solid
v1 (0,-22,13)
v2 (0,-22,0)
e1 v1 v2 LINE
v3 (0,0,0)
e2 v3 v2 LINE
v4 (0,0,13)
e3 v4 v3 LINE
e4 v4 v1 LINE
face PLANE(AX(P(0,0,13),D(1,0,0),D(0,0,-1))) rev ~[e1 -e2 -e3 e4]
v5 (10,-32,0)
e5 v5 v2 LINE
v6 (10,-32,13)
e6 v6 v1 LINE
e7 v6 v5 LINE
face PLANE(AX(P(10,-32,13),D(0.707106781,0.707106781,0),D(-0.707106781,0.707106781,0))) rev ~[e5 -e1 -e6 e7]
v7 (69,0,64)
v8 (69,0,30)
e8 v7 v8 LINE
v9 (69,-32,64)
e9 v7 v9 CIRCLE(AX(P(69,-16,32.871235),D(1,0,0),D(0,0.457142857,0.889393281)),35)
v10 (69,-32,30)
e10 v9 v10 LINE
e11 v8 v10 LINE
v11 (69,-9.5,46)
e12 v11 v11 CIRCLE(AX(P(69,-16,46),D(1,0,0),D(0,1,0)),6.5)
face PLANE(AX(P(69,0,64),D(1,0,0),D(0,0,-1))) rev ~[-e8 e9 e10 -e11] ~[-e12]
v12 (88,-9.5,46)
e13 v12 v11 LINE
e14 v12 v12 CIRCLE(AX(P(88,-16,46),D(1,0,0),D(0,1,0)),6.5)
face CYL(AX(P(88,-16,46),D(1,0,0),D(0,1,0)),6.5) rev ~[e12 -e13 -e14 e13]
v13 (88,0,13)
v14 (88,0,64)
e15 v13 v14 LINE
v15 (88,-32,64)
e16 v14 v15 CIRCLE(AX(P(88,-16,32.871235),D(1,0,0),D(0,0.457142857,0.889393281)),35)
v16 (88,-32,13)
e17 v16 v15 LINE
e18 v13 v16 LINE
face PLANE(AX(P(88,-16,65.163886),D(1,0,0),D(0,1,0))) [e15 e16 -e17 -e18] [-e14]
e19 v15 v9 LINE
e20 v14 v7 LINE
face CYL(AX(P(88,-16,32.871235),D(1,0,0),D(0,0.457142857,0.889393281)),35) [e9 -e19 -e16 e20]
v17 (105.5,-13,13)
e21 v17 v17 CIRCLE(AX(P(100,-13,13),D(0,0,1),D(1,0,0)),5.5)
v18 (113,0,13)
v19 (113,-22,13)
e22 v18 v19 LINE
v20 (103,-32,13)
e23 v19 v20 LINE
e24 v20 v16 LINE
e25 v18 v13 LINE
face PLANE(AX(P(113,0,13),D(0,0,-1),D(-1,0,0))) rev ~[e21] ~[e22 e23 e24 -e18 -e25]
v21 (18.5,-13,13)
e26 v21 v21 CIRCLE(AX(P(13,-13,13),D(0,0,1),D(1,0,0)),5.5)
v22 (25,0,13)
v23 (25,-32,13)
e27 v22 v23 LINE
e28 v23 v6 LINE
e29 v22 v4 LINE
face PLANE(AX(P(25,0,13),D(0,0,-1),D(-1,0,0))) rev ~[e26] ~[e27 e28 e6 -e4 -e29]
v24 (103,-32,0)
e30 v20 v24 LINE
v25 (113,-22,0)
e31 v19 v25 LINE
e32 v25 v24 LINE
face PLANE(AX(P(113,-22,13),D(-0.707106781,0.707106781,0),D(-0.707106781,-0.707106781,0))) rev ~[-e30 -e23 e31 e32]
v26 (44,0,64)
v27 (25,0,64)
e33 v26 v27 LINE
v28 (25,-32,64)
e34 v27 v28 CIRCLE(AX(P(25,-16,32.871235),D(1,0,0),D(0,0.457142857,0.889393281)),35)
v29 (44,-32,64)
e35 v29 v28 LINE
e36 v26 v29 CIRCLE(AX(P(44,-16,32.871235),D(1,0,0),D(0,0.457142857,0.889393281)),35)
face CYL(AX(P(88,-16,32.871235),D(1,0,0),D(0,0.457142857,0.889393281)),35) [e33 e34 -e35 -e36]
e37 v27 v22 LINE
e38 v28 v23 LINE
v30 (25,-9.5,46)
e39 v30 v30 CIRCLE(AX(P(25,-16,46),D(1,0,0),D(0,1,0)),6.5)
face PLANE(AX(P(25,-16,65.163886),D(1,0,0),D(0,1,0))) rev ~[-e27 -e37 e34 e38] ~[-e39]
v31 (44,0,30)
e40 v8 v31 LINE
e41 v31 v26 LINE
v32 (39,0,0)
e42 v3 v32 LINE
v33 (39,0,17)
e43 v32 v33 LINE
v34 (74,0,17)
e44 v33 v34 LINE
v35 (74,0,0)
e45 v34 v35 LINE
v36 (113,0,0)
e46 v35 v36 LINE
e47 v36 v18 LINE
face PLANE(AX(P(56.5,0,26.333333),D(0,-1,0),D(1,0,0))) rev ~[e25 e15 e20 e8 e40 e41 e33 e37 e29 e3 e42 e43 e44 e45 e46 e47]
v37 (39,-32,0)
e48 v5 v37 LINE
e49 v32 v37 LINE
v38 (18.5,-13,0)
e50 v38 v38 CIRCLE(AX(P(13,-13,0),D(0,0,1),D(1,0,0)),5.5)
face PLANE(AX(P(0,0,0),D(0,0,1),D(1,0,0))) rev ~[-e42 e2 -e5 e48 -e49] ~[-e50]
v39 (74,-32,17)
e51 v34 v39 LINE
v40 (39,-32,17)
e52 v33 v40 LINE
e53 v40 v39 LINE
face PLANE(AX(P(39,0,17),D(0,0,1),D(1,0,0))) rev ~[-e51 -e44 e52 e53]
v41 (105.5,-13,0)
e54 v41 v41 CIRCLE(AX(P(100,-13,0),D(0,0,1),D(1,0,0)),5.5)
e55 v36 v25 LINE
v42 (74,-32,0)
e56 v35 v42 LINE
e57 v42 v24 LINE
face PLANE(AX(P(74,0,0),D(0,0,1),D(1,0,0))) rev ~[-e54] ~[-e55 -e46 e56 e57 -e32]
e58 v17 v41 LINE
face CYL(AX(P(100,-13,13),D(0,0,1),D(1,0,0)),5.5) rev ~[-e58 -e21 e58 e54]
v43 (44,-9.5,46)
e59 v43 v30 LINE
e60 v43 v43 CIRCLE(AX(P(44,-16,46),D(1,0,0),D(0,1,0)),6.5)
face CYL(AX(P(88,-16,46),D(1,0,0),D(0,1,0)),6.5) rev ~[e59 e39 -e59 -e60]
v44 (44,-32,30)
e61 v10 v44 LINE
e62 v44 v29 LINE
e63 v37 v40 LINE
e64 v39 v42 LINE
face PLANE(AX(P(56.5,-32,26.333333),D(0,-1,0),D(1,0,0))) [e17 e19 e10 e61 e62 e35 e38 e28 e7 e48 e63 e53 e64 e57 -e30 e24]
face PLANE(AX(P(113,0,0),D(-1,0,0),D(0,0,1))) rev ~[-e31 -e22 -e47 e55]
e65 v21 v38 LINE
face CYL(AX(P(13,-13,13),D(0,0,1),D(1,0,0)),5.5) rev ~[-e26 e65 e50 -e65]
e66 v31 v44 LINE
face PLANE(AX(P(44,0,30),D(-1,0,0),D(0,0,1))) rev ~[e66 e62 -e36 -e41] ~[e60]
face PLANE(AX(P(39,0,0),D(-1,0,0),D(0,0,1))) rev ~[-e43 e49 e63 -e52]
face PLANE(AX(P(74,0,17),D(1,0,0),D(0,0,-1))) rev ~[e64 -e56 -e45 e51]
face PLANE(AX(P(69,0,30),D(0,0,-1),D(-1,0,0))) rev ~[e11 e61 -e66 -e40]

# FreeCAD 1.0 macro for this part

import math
import FreeCAD as App
import Part
import Sketcher

doc = App.newDocument("Part")
params = doc.addObject("Spreadsheet::Sheet", "Params")
for row, (alias, value) in enumerate([
    ("sketch1_width", "39 mm"),
    ("sketch1_width2", "35 mm"),
    ("sketch1_width3", "25 mm"),
    ("sketch1_height", "13 mm"),
    ("sketch1_height2", "17 mm"),
    ("pad1_length", "32 mm"),
    ("sketch2_diameter", "11 mm"),
    ("sketch3_diameter", "11 mm"),
    ("sketch4_diameter", "13 mm"),
    ("sketch5_width", "10 mm"),
    ("sketch6_width", "10 mm"),
    ("sketch7_radius", "35 mm"),
    ("sketch7_width", "32 mm"),
    ("pad2_length", "63 mm"),
    ("sketch8_width", "25 mm"),
    ("sketch9_radius", "35 mm"),
    ("sketch9_width", "32 mm"),
    ("pad3_length", "63 mm"),
], start=1):
    params.set(f"A{row}", alias)
    params.set(f"B{row}", "=" + value)
    params.setAlias(f"B{row}", alias)

body = doc.addObject("PartDesign::Body", "Body")

# Sketch on XZ plane
sketch1 = body.newObject("Sketcher::SketchObject", "Sketch")
sketch1.AttachmentSupport = (doc.getObject("XZ_Plane"), [""])
sketch1.MapMode = "FlatFace"
sketch1.addGeometry([
    Part.LineSegment(App.Vector(0, 13, 0), App.Vector(0, 0, 0)),  # 0
    Part.LineSegment(App.Vector(0, 0, 0), App.Vector(39, 0, 0)),  # 1
    Part.LineSegment(App.Vector(39, 0, 0), App.Vector(39, 17, 0)),  # 2
    Part.LineSegment(App.Vector(39, 17, 0), App.Vector(74, 17, 0)),  # 3
    Part.LineSegment(App.Vector(74, 17, 0), App.Vector(74, 0, 0)),  # 4
    Part.LineSegment(App.Vector(74, 0, 0), App.Vector(113, 0, 0)),  # 5
    Part.LineSegment(App.Vector(113, 0, 0), App.Vector(113, 13, 0)),  # 6
    Part.LineSegment(App.Vector(113, 13, 0), App.Vector(88, 13, 0)),  # 7
    Part.LineSegment(App.Vector(88, 13, 0), App.Vector(88, 64, 0)),  # 8
    Part.LineSegment(App.Vector(88, 64, 0), App.Vector(69, 64, 0)),  # 9
    Part.LineSegment(App.Vector(69, 64, 0), App.Vector(69, 30, 0)),  # 10
    Part.LineSegment(App.Vector(69, 30, 0), App.Vector(44, 30, 0)),  # 11
    Part.LineSegment(App.Vector(44, 30, 0), App.Vector(44, 64, 0)),  # 12
    Part.LineSegment(App.Vector(44, 64, 0), App.Vector(25, 64, 0)),  # 13
    Part.LineSegment(App.Vector(25, 64, 0), App.Vector(25, 13, 0)),  # 14
    Part.LineSegment(App.Vector(25, 13, 0), App.Vector(0, 13, 0)),  # 15
], False)
sketch1.addConstraint([
    Sketcher.Constraint("Coincident", 0, 2, 1, 1),
    Sketcher.Constraint("Coincident", 1, 2, 2, 1),
    Sketcher.Constraint("Coincident", 2, 2, 3, 1),
    Sketcher.Constraint("Coincident", 3, 2, 4, 1),
    Sketcher.Constraint("Coincident", 4, 2, 5, 1),
    Sketcher.Constraint("Coincident", 5, 2, 6, 1),
    Sketcher.Constraint("Coincident", 6, 2, 7, 1),
    Sketcher.Constraint("Coincident", 7, 2, 8, 1),
    Sketcher.Constraint("Coincident", 8, 2, 9, 1),
    Sketcher.Constraint("Coincident", 9, 2, 10, 1),
    Sketcher.Constraint("Coincident", 10, 2, 11, 1),
    Sketcher.Constraint("Coincident", 11, 2, 12, 1),
    Sketcher.Constraint("Coincident", 12, 2, 13, 1),
    Sketcher.Constraint("Coincident", 13, 2, 14, 1),
    Sketcher.Constraint("Coincident", 14, 2, 15, 1),
    Sketcher.Constraint("Coincident", 15, 2, 0, 1),
    Sketcher.Constraint("Vertical", 0),
    Sketcher.Constraint("Horizontal", 1),
    Sketcher.Constraint("Vertical", 2),
    Sketcher.Constraint("Horizontal", 3),
    Sketcher.Constraint("Vertical", 4),
    Sketcher.Constraint("Horizontal", 5),
    Sketcher.Constraint("Vertical", 6),
    Sketcher.Constraint("Horizontal", 7),
    Sketcher.Constraint("Vertical", 8),
    Sketcher.Constraint("Horizontal", 9),
    Sketcher.Constraint("Vertical", 10),
    Sketcher.Constraint("Horizontal", 11),
    Sketcher.Constraint("Vertical", 12),
    Sketcher.Constraint("Horizontal", 13),
    Sketcher.Constraint("Vertical", 14),
    Sketcher.Constraint("Horizontal", 15),
    Sketcher.Constraint("Coincident", 0, 2, -1, 1),
    Sketcher.Constraint("PointOnObject", 4, 2, -1),
    Sketcher.Constraint("Horizontal", 9, 2, 12, 2),
    Sketcher.Constraint("Horizontal", 7, 2, 14, 2),
    Sketcher.Constraint("Equal", 1, 5),
    Sketcher.Constraint("Equal", 7, 11),
    Sketcher.Constraint("Equal", 9, 13),
    Sketcher.Constraint("Equal", 11, 15),
    Sketcher.Constraint("DistanceX", 1, 1, 1, 2, 39.0),
    Sketcher.Constraint("DistanceX", 3, 1, 3, 2, 35.0),
    Sketcher.Constraint("DistanceX", 7, 2, 7, 1, 25.0),
    Sketcher.Constraint("DistanceY", 0, 2, 0, 1, 13.0),
    Sketcher.Constraint("DistanceY", 2, 1, 2, 2, 17.0),
    Sketcher.Constraint("DistanceY", 8, 1, 8, 2, 51.0),
    Sketcher.Constraint("DistanceY", 10, 2, 10, 1, 34.0),
])
sketch1.setExpression("Constraints[40]", "Params.sketch1_width")
sketch1.setExpression("Constraints[41]", "Params.sketch1_width2")
sketch1.setExpression("Constraints[42]", "Params.sketch1_width3")
sketch1.setExpression("Constraints[43]", "Params.sketch1_height")
sketch1.setExpression("Constraints[44]", "Params.sketch1_height2")
pad1 = body.newObject("PartDesign::Pad", "Pad")
pad1.Profile = sketch1
pad1.setExpression("Length", "Params.pad1_length")

# Sketch on XY plane
sketch2 = body.newObject("Sketcher::SketchObject", "Sketch001")
sketch2.AttachmentSupport = (doc.getObject("XY_Plane"), [""])
sketch2.MapMode = "FlatFace"
sketch2.AttachmentOffset = App.Placement(App.Vector(0, 0, 13), App.Rotation())
sketch2.addGeometry(Part.Circle(App.Vector(100, -13, 0), App.Vector(0, 0, 1), 6), False)
sketch2.addConstraint([
    Sketcher.Constraint("Diameter", 0, 11.0),
    Sketcher.Constraint("DistanceX", -1, 1, 0, 3, 100.0),
    Sketcher.Constraint("DistanceY", 0, 3, -1, 1, 13.0),
])
sketch2.setExpression("Constraints[0]", "Params.sketch2_diameter")
pocket1 = body.newObject("PartDesign::Pocket", "Pocket")
pocket1.Profile = sketch2
pocket1.Type = "ThroughAll"

# Sketch on XY plane
sketch3 = body.newObject("Sketcher::SketchObject", "Sketch002")
sketch3.AttachmentSupport = (doc.getObject("XY_Plane"), [""])
sketch3.MapMode = "FlatFace"
sketch3.AttachmentOffset = App.Placement(App.Vector(0, 0, 13), App.Rotation())
sketch3.addGeometry(Part.Circle(App.Vector(13, -13, 0), App.Vector(0, 0, 1), 6), False)
sketch3.addConstraint([
    Sketcher.Constraint("Diameter", 0, 11.0),
    Sketcher.Constraint("DistanceX", -1, 1, 0, 3, 13.0),
    Sketcher.Constraint("DistanceY", 0, 3, -1, 1, 13.0),
])
sketch3.setExpression("Constraints[0]", "Params.sketch3_diameter")
pocket2 = body.newObject("PartDesign::Pocket", "Pocket001")
pocket2.Profile = sketch3
pocket2.Type = "ThroughAll"

# Sketch on YZ plane
sketch4 = body.newObject("Sketcher::SketchObject", "Sketch003")
sketch4.AttachmentSupport = (doc.getObject("YZ_Plane"), [""])
sketch4.MapMode = "FlatFace"
sketch4.AttachmentOffset = App.Placement(App.Vector(0, 0, 88), App.Rotation())
sketch4.addGeometry(Part.Circle(App.Vector(-16, 46, 0), App.Vector(0, 0, 1), 6), False)
sketch4.addConstraint([
    Sketcher.Constraint("Diameter", 0, 13.0),
    Sketcher.Constraint("DistanceX", 0, 3, -1, 1, 16.0),
    Sketcher.Constraint("DistanceY", -1, 1, 0, 3, 46.0),
])
sketch4.setExpression("Constraints[0]", "Params.sketch4_diameter")
pocket3 = body.newObject("PartDesign::Pocket", "Pocket002")
pocket3.Profile = sketch4
pocket3.Type = "ThroughAll"

# Sketch on XY plane
sketch5 = body.newObject("Sketcher::SketchObject", "Sketch004")
sketch5.AttachmentSupport = (doc.getObject("XY_Plane"), [""])
sketch5.MapMode = "FlatFace"
sketch5.AttachmentOffset = App.Placement(App.Vector(0, 0, 13), App.Rotation())
sketch5.addGeometry([
    Part.LineSegment(App.Vector(103, -32, 0), App.Vector(113, -32, 0)),
    Part.LineSegment(App.Vector(113, -32, 0), App.Vector(113, -22, 0)),
    Part.LineSegment(App.Vector(113, -22, 0), App.Vector(103, -32, 0)),
], False)
sketch5.addConstraint([
    Sketcher.Constraint("Coincident", 0, 2, 1, 1),
    Sketcher.Constraint("Coincident", 1, 2, 2, 1),
    Sketcher.Constraint("Coincident", 2, 2, 0, 1),
    Sketcher.Constraint("Horizontal", 0),
    Sketcher.Constraint("Vertical", 1),
    Sketcher.Constraint("Equal", 0, 1),
    Sketcher.Constraint("DistanceX", 0, 1, 0, 2, 10.0),
    Sketcher.Constraint("DistanceX", -1, 1, 0, 2, 113.0),
    Sketcher.Constraint("DistanceY", 0, 2, -1, 1, 32.0),
])
sketch5.setExpression("Constraints[6]", "Params.sketch5_width")
pocket4 = body.newObject("PartDesign::Pocket", "Pocket003")
pocket4.Profile = sketch5
pocket4.Type = "ThroughAll"

# Sketch on XY plane
sketch6 = body.newObject("Sketcher::SketchObject", "Sketch005")
sketch6.AttachmentSupport = (doc.getObject("XY_Plane"), [""])
sketch6.MapMode = "FlatFace"
sketch6.AttachmentOffset = App.Placement(App.Vector(0, 0, 13), App.Rotation())
sketch6.addGeometry([
    Part.LineSegment(App.Vector(10, -32, 0), App.Vector(0, -22, 0)),
    Part.LineSegment(App.Vector(0, -22, 0), App.Vector(0, -32, 0)),
    Part.LineSegment(App.Vector(0, -32, 0), App.Vector(10, -32, 0)),
], False)
sketch6.addConstraint([
    Sketcher.Constraint("Coincident", 0, 2, 1, 1),
    Sketcher.Constraint("Coincident", 1, 2, 2, 1),
    Sketcher.Constraint("Coincident", 2, 2, 0, 1),
    Sketcher.Constraint("Vertical", 1),
    Sketcher.Constraint("Horizontal", 2),
    Sketcher.Constraint("PointOnObject", 0, 2, -2),
    Sketcher.Constraint("Equal", 2, 1),
    Sketcher.Constraint("DistanceX", 2, 1, 2, 2, 10.0),
    Sketcher.Constraint("DistanceY", 0, 2, -1, 1, 22.0),
])
sketch6.setExpression("Constraints[7]", "Params.sketch6_width")
pocket5 = body.newObject("PartDesign::Pocket", "Pocket004")
pocket5.Profile = sketch6
pocket5.Type = "ThroughAll"

# Sketch on YZ plane
sketch7 = body.newObject("Sketcher::SketchObject", "Sketch006")
sketch7.AttachmentSupport = (doc.getObject("YZ_Plane"), [""])
sketch7.MapMode = "FlatFace"
sketch7.AttachmentOffset = App.Placement(App.Vector(0, 0, 88), App.Rotation())
sketch7.addGeometry([
    Part.LineSegment(App.Vector(-32, 64, 0), App.Vector(0, 64, 0)),
    Part.ArcOfCircle(Part.Circle(App.Vector(-16, 33, 0), App.Vector(0, 0, 1), 35), math.radians(63), math.radians(117)),
], False)
sketch7.addConstraint([
    Sketcher.Constraint("Coincident", 0, 1, 1, 2),
    Sketcher.Constraint("Coincident", 1, 1, 0, 2),
    Sketcher.Constraint("Horizontal", 0),
    Sketcher.Constraint("PointOnObject", 1, 1, -2),
    Sketcher.Constraint("Radius", 1, 35.0),
    Sketcher.Constraint("DistanceX", 0, 1, 0, 2, 32.0),
    Sketcher.Constraint("DistanceY", -1, 1, 0, 1, 64.0),
])
sketch7.setExpression("Constraints[4]", "Params.sketch7_radius")
sketch7.setExpression("Constraints[5]", "Params.sketch7_width")
pad2 = body.newObject("PartDesign::Pad", "Pad001")
pad2.Profile = sketch7
pad2.setExpression("Length", "Params.pad2_length")
pad2.Reversed = True

# Sketch on XZ plane
sketch8 = body.newObject("Sketcher::SketchObject", "Sketch007")
sketch8.AttachmentSupport = (doc.getObject("XZ_Plane"), [""])
sketch8.MapMode = "FlatFace"
sketch8.addGeometry([
    Part.LineSegment(App.Vector(44, 68.5, 0), App.Vector(44, 64, 0)),
    Part.LineSegment(App.Vector(44, 64, 0), App.Vector(69, 64, 0)),
    Part.LineSegment(App.Vector(69, 64, 0), App.Vector(69, 68.5, 0)),
    Part.LineSegment(App.Vector(69, 68.5, 0), App.Vector(44, 68.5, 0)),
], False)
sketch8.addConstraint([
    Sketcher.Constraint("Coincident", 0, 2, 1, 1),
    Sketcher.Constraint("Coincident", 1, 2, 2, 1),
    Sketcher.Constraint("Coincident", 2, 2, 3, 1),
    Sketcher.Constraint("Coincident", 3, 2, 0, 1),
    Sketcher.Constraint("Vertical", 0),
    Sketcher.Constraint("Horizontal", 1),
    Sketcher.Constraint("Vertical", 2),
    Sketcher.Constraint("Horizontal", 3),
    Sketcher.Constraint("DistanceX", 1, 1, 1, 2, 25.0),
    Sketcher.Constraint("DistanceX", -1, 1, 0, 2, 44.0),
    Sketcher.Constraint("DistanceY", -1, 1, 0, 2, 64.0),
    Sketcher.Constraint("DistanceY", 0, 2, 0, 1, 4.455775),
])
sketch8.setExpression("Constraints[8]", "Params.sketch8_width")
pocket6 = body.newObject("PartDesign::Pocket", "Pocket005")
pocket6.Profile = sketch8
pocket6.Type = "ThroughAll"
pocket6.Reversed = True
body2 = doc.addObject("PartDesign::Body", "Body001")

# Sketch on YZ plane
sketch9 = body2.newObject("Sketcher::SketchObject", "Sketch008")
sketch9.AttachmentSupport = (doc.getObject("YZ_Plane001"), [""])
sketch9.MapMode = "FlatFace"
sketch9.AttachmentOffset = App.Placement(App.Vector(0, 0, 88), App.Rotation())
sketch9.addGeometry([
    Part.LineSegment(App.Vector(-32, 64, 0), App.Vector(0, 64, 0)),
    Part.ArcOfCircle(Part.Circle(App.Vector(-16, 33, 0), App.Vector(0, 0, 1), 35), math.radians(63), math.radians(117)),
], False)
sketch9.addConstraint([
    Sketcher.Constraint("Coincident", 0, 1, 1, 2),
    Sketcher.Constraint("Coincident", 1, 1, 0, 2),
    Sketcher.Constraint("Horizontal", 0),
    Sketcher.Constraint("PointOnObject", 1, 1, -2),
    Sketcher.Constraint("Radius", 1, 35.0),
    Sketcher.Constraint("DistanceX", 0, 1, 0, 2, 32.0),
    Sketcher.Constraint("DistanceY", -1, 1, 0, 1, 64.0),
])
sketch9.setExpression("Constraints[4]", "Params.sketch9_radius")
sketch9.setExpression("Constraints[5]", "Params.sketch9_width")
pad3 = body2.newObject("PartDesign::Pad", "Pad002")
pad3.Profile = sketch9
pad3.setExpression("Length", "Params.pad3_length")
pad3.Reversed = True
body2.Visibility = False

doc.recompute()
